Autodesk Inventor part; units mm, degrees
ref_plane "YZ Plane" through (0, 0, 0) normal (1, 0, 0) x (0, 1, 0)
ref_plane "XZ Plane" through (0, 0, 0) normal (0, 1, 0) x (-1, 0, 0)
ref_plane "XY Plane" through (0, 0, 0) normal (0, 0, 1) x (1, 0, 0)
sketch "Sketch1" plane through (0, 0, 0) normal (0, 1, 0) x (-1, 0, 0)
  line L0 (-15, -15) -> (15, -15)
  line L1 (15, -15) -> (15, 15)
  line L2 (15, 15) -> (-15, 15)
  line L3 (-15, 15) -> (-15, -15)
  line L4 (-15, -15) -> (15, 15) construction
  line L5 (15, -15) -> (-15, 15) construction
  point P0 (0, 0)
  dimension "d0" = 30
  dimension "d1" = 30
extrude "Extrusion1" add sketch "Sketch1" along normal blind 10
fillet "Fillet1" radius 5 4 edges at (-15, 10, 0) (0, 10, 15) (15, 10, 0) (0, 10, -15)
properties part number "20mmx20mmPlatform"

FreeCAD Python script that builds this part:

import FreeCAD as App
import Part
import Sketcher
from FreeCAD import Vector


def edges_at(feature, points):
    """Names of the edges that pass closest to the given points."""
    edges = feature.Shape.Edges
    near = lambda p: min(range(len(edges)), key=lambda i: edges[i].distToShape(Part.Vertex(*p))[0])
    return sorted({f"Edge{near(p) + 1}" for p in points})


def add_polygon(sketch, points):
    """Adds a closed chain of lines whose ends are joined by coincident constraints."""
    first, n = sketch.GeometryCount, len(points)
    for a, b in zip(points, points[1:] + points[:1]):
        sketch.addGeometry(Part.LineSegment(App.Vector(*a, 0), App.Vector(*b, 0)), False)
    for i in range(n):
        sketch.addConstraint(Sketcher.Constraint("Coincident", first + i, 2, first + (i + 1) % n, 1))

doc = App.newDocument("Part")
body = doc.addObject("PartDesign::Body", "Body")

# Sketch on XZ plane
sketch1 = body.newObject("Sketcher::SketchObject", "Sketch")
sketch1.AttachmentSupport = (doc.getObject("XZ_Plane"), [""])
sketch1.MapMode = "FlatFace"
add_polygon(sketch1, [(15, 15), (15, -15), (-15, -15), (-15, 15)])  # lines 0-3
sketch1.addConstraint([
    Sketcher.Constraint("Vertical", 0),
    Sketcher.Constraint("Horizontal", 1),
    Sketcher.Constraint("Vertical", 2),
    Sketcher.Constraint("Horizontal", 3),
    Sketcher.Constraint("Symmetric", 0, 2, 2, 2, -1, 1),
    Sketcher.Constraint("Equal", 3, 0),
    Sketcher.Constraint("DistanceX", 1, 2, 1, 1, 30.0),
])
pad1 = body.newObject("PartDesign::Pad", "Pad")
pad1.Profile = sketch1
pad1.Length = 10
pad1.Reversed = True
doc.recompute()

fillet = body.newObject("PartDesign::Fillet", "Fillet")
fillet.Base = (pad1, edges_at(pad1, [
    (-15, 10, 0),
    (0, 10, 15),
    (15, 10, 0),
    (0, 10, -15),
]))
fillet.Radius = 5

doc.recompute()
